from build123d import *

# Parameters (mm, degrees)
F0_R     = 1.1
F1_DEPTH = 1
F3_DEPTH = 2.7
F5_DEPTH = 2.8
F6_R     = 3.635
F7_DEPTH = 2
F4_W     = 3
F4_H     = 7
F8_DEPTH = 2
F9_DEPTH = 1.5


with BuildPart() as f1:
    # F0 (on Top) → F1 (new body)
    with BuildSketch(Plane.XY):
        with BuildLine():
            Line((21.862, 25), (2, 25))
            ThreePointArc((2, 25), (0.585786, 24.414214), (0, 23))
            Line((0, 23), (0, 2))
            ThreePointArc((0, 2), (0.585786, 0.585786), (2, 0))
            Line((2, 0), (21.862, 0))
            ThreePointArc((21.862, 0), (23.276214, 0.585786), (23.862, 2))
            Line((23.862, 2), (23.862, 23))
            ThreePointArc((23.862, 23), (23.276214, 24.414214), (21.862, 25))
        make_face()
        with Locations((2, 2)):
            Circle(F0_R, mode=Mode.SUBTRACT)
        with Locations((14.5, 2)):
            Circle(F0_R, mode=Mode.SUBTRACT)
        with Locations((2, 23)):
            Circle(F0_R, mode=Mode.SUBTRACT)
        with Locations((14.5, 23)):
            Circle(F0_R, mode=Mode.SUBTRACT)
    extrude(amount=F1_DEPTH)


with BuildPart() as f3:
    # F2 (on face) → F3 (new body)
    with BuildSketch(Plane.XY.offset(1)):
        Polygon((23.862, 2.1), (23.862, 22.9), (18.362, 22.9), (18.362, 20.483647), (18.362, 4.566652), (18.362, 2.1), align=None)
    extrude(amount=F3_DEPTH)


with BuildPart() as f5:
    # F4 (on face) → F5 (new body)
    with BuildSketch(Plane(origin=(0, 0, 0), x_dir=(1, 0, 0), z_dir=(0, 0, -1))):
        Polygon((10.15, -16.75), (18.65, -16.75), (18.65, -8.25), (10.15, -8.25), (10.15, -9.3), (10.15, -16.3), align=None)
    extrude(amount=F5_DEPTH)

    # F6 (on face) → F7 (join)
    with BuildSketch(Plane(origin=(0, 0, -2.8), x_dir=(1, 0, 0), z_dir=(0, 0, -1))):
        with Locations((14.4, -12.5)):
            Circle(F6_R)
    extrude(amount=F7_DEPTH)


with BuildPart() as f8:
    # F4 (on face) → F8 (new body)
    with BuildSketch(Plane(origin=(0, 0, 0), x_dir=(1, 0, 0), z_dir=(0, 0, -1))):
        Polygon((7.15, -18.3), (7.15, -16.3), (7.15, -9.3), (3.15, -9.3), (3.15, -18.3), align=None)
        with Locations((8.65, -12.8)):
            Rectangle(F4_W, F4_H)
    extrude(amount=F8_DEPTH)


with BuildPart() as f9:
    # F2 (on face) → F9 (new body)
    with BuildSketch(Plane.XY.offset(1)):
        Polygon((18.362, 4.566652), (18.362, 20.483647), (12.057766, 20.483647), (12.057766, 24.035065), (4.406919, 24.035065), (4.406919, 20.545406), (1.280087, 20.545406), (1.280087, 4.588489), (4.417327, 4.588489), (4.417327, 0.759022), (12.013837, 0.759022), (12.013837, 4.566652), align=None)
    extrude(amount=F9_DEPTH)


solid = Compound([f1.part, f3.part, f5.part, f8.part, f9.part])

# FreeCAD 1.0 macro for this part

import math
import FreeCAD as App
import Part
import Sketcher

V = App.Vector


def add_polygon(sketch, points):
    """Adds a closed chain of lines whose ends are joined by coincident constraints."""
    first, n = sketch.GeometryCount, len(points)
    for a, b in zip(points, points[1:] + points[:1]):
        sketch.addGeometry(Part.LineSegment(App.Vector(*a, 0), App.Vector(*b, 0)), False)
    for i in range(n):
        sketch.addConstraint(Sketcher.Constraint("Coincident", first + i, 2, first + (i + 1) % n, 1))

doc = App.newDocument("Part")
body = doc.addObject("PartDesign::Body", "Body")

sketch1 = body.newObject("Sketcher::SketchObject", "Sketch")
sketch1.AttachmentSupport = (doc.getObject("XY_Plane"), [""])
sketch1.MapMode = "FlatFace"
sketch1.addGeometry([
    Part.LineSegment(V(21.9, 25, 0), V(2, 25, 0)),
    Part.ArcOfCircle(Part.Circle(V(2, 23, 0), V(0, 0, 1), 2), math.radians(90), math.radians(180)),
    Part.LineSegment(V(0, 23, 0), V(0, 2, 0)),
    Part.ArcOfCircle(Part.Circle(V(2, 2, 0), V(0, 0, 1), 2), math.radians(180), math.radians(270)),
    Part.LineSegment(V(2, 0, 0), V(21.9, 0, 0)),
    Part.ArcOfCircle(Part.Circle(V(21.9, 2, 0), V(0, 0, 1), 2), math.radians(-90), math.radians(0)),
    Part.LineSegment(V(23.9, 2, 0), V(23.9, 23, 0)),
    Part.ArcOfCircle(Part.Circle(V(21.9, 23, 0), V(0, 0, 1), 2), math.radians(0), math.radians(90)),
    Part.Circle(V(2, 2, 0), V(0, 0, 1), 1.1),
    Part.Circle(V(14.5, 2, 0), V(0, 0, 1), 1.1),
    Part.Circle(V(2, 23, 0), V(0, 0, 1), 1.1),
    Part.Circle(V(14.5, 23, 0), V(0, 0, 1), 1.1),
], False)
sketch1.addConstraint([
    Sketcher.Constraint("Tangent", 0, 2, 1, 1),
    Sketcher.Constraint("Tangent", 1, 2, 2, 1),
    Sketcher.Constraint("Tangent", 2, 2, 3, 1),
    Sketcher.Constraint("Tangent", 3, 2, 4, 1),
    Sketcher.Constraint("Tangent", 4, 2, 5, 1),
    Sketcher.Constraint("Tangent", 5, 2, 6, 1),
    Sketcher.Constraint("Tangent", 6, 2, 7, 1),
    Sketcher.Constraint("Tangent", 7, 2, 0, 1),
    Sketcher.Constraint("Horizontal", 0),
    Sketcher.Constraint("Vertical", 2),
    Sketcher.Constraint("Horizontal", 4),
    Sketcher.Constraint("Vertical", 6),
    Sketcher.Constraint("Coincident", 8, 3, 3, 3),
    Sketcher.Constraint("Coincident", 10, 3, 1, 3),
    Sketcher.Constraint("Equal", 1, 3),
    Sketcher.Constraint("Equal", 3, 5),
    Sketcher.Constraint("Equal", 5, 7),
    Sketcher.Constraint("Equal", 8, 9),
    Sketcher.Constraint("Equal", 9, 10),
    Sketcher.Constraint("Equal", 10, 11),
    Sketcher.Constraint("PointOnObject", 1, 2, -2),
    Sketcher.Constraint("PointOnObject", 3, 2, -1),
    Sketcher.Constraint("Horizontal", 8, 3, 9, 3),
    Sketcher.Constraint("Horizontal", 10, 3, 11, 3),
    Sketcher.Constraint("Vertical", 9, 3, 11, 3),
    Sketcher.Constraint("Radius", 1, 1.999999),
    Sketcher.Constraint("Diameter", 8, 2.2),
    Sketcher.Constraint("DistanceY", 2, 2, 2, 1, 21.0),
    Sketcher.Constraint("DistanceX", -1, 1, 9, 3, 14.5),
    Sketcher.Constraint("DistanceX", 0, 2, 0, 1, 19.862),
])
pad1 = body.newObject("PartDesign::Pad", "Pad")
pad1.Profile = sketch1
pad1.Length = 1
body2 = doc.addObject("PartDesign::Body", "Body001")

sketch2 = body2.newObject("Sketcher::SketchObject", "Sketch001")
sketch2.AttachmentSupport = (doc.getObject("XY_Plane001"), [""])
sketch2.MapMode = "FlatFace"
sketch2.AttachmentOffset = App.Placement(V(0, 0, 1), App.Rotation())
add_polygon(sketch2, [(24, 2), (24, 23), (18, 23), (18, 2)])
sketch2.addConstraint([
    Sketcher.Constraint("Vertical", 0),
    Sketcher.Constraint("Horizontal", 1),
    Sketcher.Constraint("Vertical", 2),
    Sketcher.Constraint("Horizontal", 3),
    Sketcher.Constraint("DistanceX", 1, 2, 1, 1, 5.5),
    Sketcher.Constraint("DistanceY", 0, 1, 0, 2, 20.8),
    Sketcher.Constraint("DistanceY", -1, 1, 0, 2, 22.9),
    Sketcher.Constraint("DistanceX", -1, 1, 0, 2, 23.862),
])
pad2 = body2.newObject("PartDesign::Pad", "Pad001")
pad2.Profile = sketch2
pad2.Length = 2.7
body3 = doc.addObject("PartDesign::Body", "Body002")

sketch3 = body3.newObject("Sketcher::SketchObject", "Sketch002")
sketch3.AttachmentSupport = (doc.getObject("XY_Plane002"), [""])
sketch3.MapMode = "FlatFace"
add_polygon(sketch3, [(10, 17), (19, 17), (19, 8), (10, 8)])
sketch3.addConstraint([
    Sketcher.Constraint("Horizontal", 0),
    Sketcher.Constraint("Vertical", 1),
    Sketcher.Constraint("Horizontal", 2),
    Sketcher.Constraint("Vertical", 3),
    Sketcher.Constraint("Equal", 2, 1),
    Sketcher.Constraint("DistanceX", 0, 1, 0, 2, 8.5),
    Sketcher.Constraint("DistanceX", -1, 1, 0, 2, 18.65),
    Sketcher.Constraint("DistanceY", -1, 1, 0, 2, 16.75),
])
pad3 = body3.newObject("PartDesign::Pad", "Pad002")
pad3.Profile = sketch3
pad3.Length = 2.8
pad3.Reversed = True

sketch4 = body3.newObject("Sketcher::SketchObject", "Sketch003")
sketch4.AttachmentSupport = (doc.getObject("XY_Plane002"), [""])
sketch4.MapMode = "FlatFace"
sketch4.AttachmentOffset = App.Placement(V(0, 0, -2.8), App.Rotation())
sketch4.addGeometry(Part.Circle(V(14.4, 12.5, 0), V(0, 0, 1), 3.6), False)
sketch4.addConstraint([
    Sketcher.Constraint("Diameter", 0, 7.27),
    Sketcher.Constraint("DistanceX", -1, 1, 0, 3, 14.4),
    Sketcher.Constraint("DistanceY", -1, 1, 0, 3, 12.5),
])
pad4 = body3.newObject("PartDesign::Pad", "Pad003")
pad4.Profile = sketch4
pad4.Length = 2
pad4.Reversed = True
body4 = doc.addObject("PartDesign::Body", "Body003")

sketch5 = body4.newObject("Sketcher::SketchObject", "Sketch004")
sketch5.AttachmentSupport = (doc.getObject("XY_Plane003"), [""])
sketch5.MapMode = "FlatFace"
add_polygon(sketch5, [(7.2, 18.3), (7.2, 16.3), (10.2, 16.3), (10.2, 9.3), (3.1, 9.3), (3.1, 18.3)])
sketch5.addConstraint([
    Sketcher.Constraint("Vertical", 0),
    Sketcher.Constraint("Horizontal", 1),
    Sketcher.Constraint("Vertical", 2),
    Sketcher.Constraint("Horizontal", 3),
    Sketcher.Constraint("Vertical", 4),
    Sketcher.Constraint("Horizontal", 5),
    Sketcher.Constraint("Equal", 3, 2),
    Sketcher.Constraint("DistanceX", 1, 1, 1, 2, 3.0),
    Sketcher.Constraint("DistanceX", 3, 2, 3, 1, 7.0),
    Sketcher.Constraint("DistanceY", 0, 2, 0, 1, 2.0),
    Sketcher.Constraint("DistanceY", -1, 1, 0, 2, 16.3),
    Sketcher.Constraint("DistanceX", -1, 1, 0, 2, 7.15),
])
pad5 = body4.newObject("PartDesign::Pad", "Pad004")
pad5.Profile = sketch5
pad5.Length = 2
pad5.Reversed = True
body5 = doc.addObject("PartDesign::Body", "Body004")

sketch6 = body5.newObject("Sketcher::SketchObject", "Sketch005")
sketch6.AttachmentSupport = (doc.getObject("XY_Plane004"), [""])
sketch6.MapMode = "FlatFace"
sketch6.AttachmentOffset = App.Placement(V(0, 0, 1), App.Rotation())
add_polygon(sketch6, [(18.4, 4.6), (18.4, 20.5), (12.1, 20.5), (12.1, 24), (4.4, 24), (4.4, 20.5), (1.3, 20.5), (1.3, 4.6), (4.4, 4.6), (4.4, 0.8), (12, 0.8), (12, 4.6)])
sketch6.addConstraint([
    Sketcher.Constraint("Vertical", 0),
    Sketcher.Constraint("Horizontal", 1),
    Sketcher.Constraint("Vertical", 2),
    Sketcher.Constraint("Horizontal", 3),
    Sketcher.Constraint("Vertical", 4),
    Sketcher.Constraint("Horizontal", 5),
    Sketcher.Constraint("Vertical", 6),
    Sketcher.Constraint("Horizontal", 7),
    Sketcher.Constraint("Vertical", 8),
    Sketcher.Constraint("Horizontal", 9),
    Sketcher.Constraint("Vertical", 10),
    Sketcher.Constraint("Horizontal", 11),
    Sketcher.Constraint("DistanceX", -1, 1, 0, 2, 18.362),
    Sketcher.Constraint("DistanceX", 7, 1, 7, 2, 3.13724),
    Sketcher.Constraint("DistanceX", 9, 1, 9, 2, 7.59651),
    Sketcher.Constraint("DistanceY", 4, 2, 4, 1, 3.489659),
    Sketcher.Constraint("DistanceY", 10, 1, 10, 2, 3.80763),
    Sketcher.Constraint("DistanceX", 1, 2, 1, 1, 6.304234),
    Sketcher.Constraint("DistanceX", 3, 2, 3, 1, 7.650847),
    Sketcher.Constraint("DistanceX", 5, 2, 5, 1, 3.126832),
    Sketcher.Constraint("DistanceY", 0, 1, 0, 2, 15.916995),
    Sketcher.Constraint("DistanceY", 2, 1, 2, 2, 3.551418),
    Sketcher.Constraint("DistanceY", 6, 2, 6, 1, 15.956917),
    Sketcher.Constraint("DistanceY", -1, 1, 6, 2, 4.588489),
])
pad6 = body5.newObject("PartDesign::Pad", "Pad005")
pad6.Profile = sketch6
pad6.Length = 1.5

doc.recompute()
